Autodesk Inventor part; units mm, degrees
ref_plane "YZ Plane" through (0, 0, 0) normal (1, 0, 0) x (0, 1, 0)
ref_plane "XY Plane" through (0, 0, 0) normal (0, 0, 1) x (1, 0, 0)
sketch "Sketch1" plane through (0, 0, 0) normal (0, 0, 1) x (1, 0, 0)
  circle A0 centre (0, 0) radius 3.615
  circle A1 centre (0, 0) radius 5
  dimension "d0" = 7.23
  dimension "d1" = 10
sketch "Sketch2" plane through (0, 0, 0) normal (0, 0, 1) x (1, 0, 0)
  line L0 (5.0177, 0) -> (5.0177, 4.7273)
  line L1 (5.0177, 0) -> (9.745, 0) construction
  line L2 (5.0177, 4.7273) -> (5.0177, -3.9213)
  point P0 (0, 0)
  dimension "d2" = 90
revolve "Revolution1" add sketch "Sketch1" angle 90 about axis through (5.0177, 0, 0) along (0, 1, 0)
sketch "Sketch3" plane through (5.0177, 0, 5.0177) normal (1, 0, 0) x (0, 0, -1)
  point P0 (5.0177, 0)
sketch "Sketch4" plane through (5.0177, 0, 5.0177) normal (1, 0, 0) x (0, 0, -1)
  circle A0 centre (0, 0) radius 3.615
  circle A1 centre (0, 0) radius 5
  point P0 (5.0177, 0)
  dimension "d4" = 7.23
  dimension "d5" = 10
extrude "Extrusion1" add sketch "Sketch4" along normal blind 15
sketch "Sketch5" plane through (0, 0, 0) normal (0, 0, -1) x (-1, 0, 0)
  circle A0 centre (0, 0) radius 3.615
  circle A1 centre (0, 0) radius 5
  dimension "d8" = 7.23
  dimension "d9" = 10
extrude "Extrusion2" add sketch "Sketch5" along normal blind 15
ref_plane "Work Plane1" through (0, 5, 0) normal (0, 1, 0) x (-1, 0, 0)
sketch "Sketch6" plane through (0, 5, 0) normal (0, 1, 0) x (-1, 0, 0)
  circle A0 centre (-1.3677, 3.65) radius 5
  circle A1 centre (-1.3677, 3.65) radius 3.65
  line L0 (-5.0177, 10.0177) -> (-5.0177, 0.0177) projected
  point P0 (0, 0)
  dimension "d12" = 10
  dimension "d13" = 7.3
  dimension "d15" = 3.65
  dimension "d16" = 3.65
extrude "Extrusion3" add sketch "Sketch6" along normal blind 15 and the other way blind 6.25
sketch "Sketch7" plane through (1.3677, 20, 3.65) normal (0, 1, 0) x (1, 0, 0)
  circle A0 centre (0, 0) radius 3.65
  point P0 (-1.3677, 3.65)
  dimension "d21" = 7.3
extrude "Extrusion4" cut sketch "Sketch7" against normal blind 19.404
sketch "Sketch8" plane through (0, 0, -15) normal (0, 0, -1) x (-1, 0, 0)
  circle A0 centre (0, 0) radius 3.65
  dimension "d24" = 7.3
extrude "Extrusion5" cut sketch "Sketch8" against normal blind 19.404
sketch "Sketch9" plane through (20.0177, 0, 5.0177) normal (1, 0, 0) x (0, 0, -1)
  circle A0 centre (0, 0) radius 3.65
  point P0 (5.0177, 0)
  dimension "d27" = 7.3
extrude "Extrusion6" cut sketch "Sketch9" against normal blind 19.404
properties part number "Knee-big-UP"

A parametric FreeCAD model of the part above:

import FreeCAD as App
import Part
import Sketcher
from FreeCAD import Vector
Q = App.Units.Quantity

doc = App.newDocument("Part")
body = doc.addObject("PartDesign::Body", "Body")

# Sketch on XY plane
sketch1 = body.newObject("Sketcher::SketchObject", "Sketch")
sketch1.AttachmentSupport = (doc.getObject("XY_Plane"), [""])
sketch1.MapMode = "FlatFace"
sketch1.addGeometry([
    Part.Circle(Vector(0, 0, 0), Vector(0, 0, 1), 5),
    Part.Circle(Vector(0, 0, 0), Vector(0, 0, 1), 3.6),
], False)
sketch1.addGeometry(Part.LineSegment(Vector(5, 0, 0), Vector(5, 10, 0)), True)  # axis
sketch1.addConstraint([
    Sketcher.Constraint("Vertical", 2),
    Sketcher.Constraint("Coincident", 0, 3, -1, 1),
    Sketcher.Constraint("Coincident", 1, 3, -1, 1),
    Sketcher.Constraint("PointOnObject", 2, 1, -1),
    Sketcher.Constraint("Diameter", 0, Q("10 mm")),
    Sketcher.Constraint("Diameter", 1, Q("7.23 mm")),
    Sketcher.Constraint("DistanceY", 2, 1, 2, 2, Q("10 mm")),
    Sketcher.Constraint("DistanceX", -1, 1, 2, 1, Q("5.0177 mm")),
])
revolution = body.newObject("PartDesign::Revolution", "Revolution")
revolution.Profile = sketch1
revolution.ReferenceAxis = (sketch1, ["Axis0"])
revolution.Angle = 90

# Sketch on YZ plane
sketch2 = body.newObject("Sketcher::SketchObject", "Sketch001")
sketch2.AttachmentSupport = (doc.getObject("YZ_Plane"), [""])
sketch2.MapMode = "FlatFace"
sketch2.AttachmentOffset = App.Placement(Vector(0, 0, 5.0177), App.Rotation())
sketch2.addGeometry([
    Part.Circle(Vector(0, 5, 0), Vector(0, 0, 1), 5),
    Part.Circle(Vector(0, 5, 0), Vector(0, 0, 1), 3.6),
], False)
sketch2.addConstraint([
    Sketcher.Constraint("Coincident", 1, 3, 0, 3),
    Sketcher.Constraint("PointOnObject", 0, 3, -2),
    Sketcher.Constraint("Diameter", 0, Q("10 mm")),
    Sketcher.Constraint("Diameter", 1, Q("7.23 mm")),
    Sketcher.Constraint("DistanceY", -1, 1, 0, 3, Q("5.0177 mm")),
])
pad1 = body.newObject("PartDesign::Pad", "Pad")
pad1.Profile = sketch2
pad1.Length = 15

# Sketch on XY plane
sketch3 = body.newObject("Sketcher::SketchObject", "Sketch002")
sketch3.AttachmentSupport = (doc.getObject("XY_Plane"), [""])
sketch3.MapMode = "FlatFace"
sketch3.addGeometry([
    Part.Circle(Vector(0, 0, 0), Vector(0, 0, 1), 5),
    Part.Circle(Vector(0, 0, 0), Vector(0, 0, 1), 3.6),
], False)
sketch3.addConstraint([
    Sketcher.Constraint("Coincident", 0, 3, -1, 1),
    Sketcher.Constraint("Coincident", 1, 3, -1, 1),
    Sketcher.Constraint("Diameter", 0, Q("10 mm")),
    Sketcher.Constraint("Diameter", 1, Q("7.23 mm")),
])
pad2 = body.newObject("PartDesign::Pad", "Pad001")
pad2.Profile = sketch3
pad2.Length = 15
pad2.Reversed = True

# Sketch on XZ plane
sketch4 = body.newObject("Sketcher::SketchObject", "Sketch003")
sketch4.AttachmentSupport = (doc.getObject("XZ_Plane"), [""])
sketch4.MapMode = "FlatFace"
sketch4.AttachmentOffset = App.Placement(Vector(0, 0, -5), App.Rotation())
sketch4.addGeometry([
    Part.Circle(Vector(1.4, 3.6, 0), Vector(0, 0, 1), 5),
    Part.Circle(Vector(1.4, 3.6, 0), Vector(0, 0, 1), 3.6),
], False)
sketch4.addConstraint([
    Sketcher.Constraint("Coincident", 1, 3, 0, 3),
    Sketcher.Constraint("Diameter", 0, Q("10 mm")),
    Sketcher.Constraint("Diameter", 1, Q("7.3 mm")),
    Sketcher.Constraint("DistanceY", -1, 1, 0, 3, Q("3.65 mm")),
    Sketcher.Constraint("DistanceX", -1, 1, 0, 3, Q("1.3677 mm")),
])
pad3 = body.newObject("PartDesign::Pad", "Pad002")
pad3.Profile = sketch4
pad3.Type = "TwoLengths"
pad3.Length = 15
pad3.Length2 = 6.25
pad3.Reversed = True

# Sketch on XZ plane
sketch5 = body.newObject("Sketcher::SketchObject", "Sketch004")
sketch5.AttachmentSupport = (doc.getObject("XZ_Plane"), [""])
sketch5.MapMode = "FlatFace"
sketch5.AttachmentOffset = App.Placement(Vector(0, 0, -20), App.Rotation())
sketch5.addGeometry(Part.Circle(Vector(1.4, 3.6, 0), Vector(0, 0, 1), 3.6), False)
sketch5.addConstraint([
    Sketcher.Constraint("Diameter", 0, Q("7.3 mm")),
    Sketcher.Constraint("DistanceY", -1, 1, 0, 3, Q("3.65 mm")),
    Sketcher.Constraint("DistanceX", -1, 1, 0, 3, Q("1.3677 mm")),
])
pocket1 = body.newObject("PartDesign::Pocket", "Pocket")
pocket1.Profile = sketch5
pocket1.Length = 19.404
pocket1.Reversed = True

# Sketch on XY plane
sketch6 = body.newObject("Sketcher::SketchObject", "Sketch005")
sketch6.AttachmentSupport = (doc.getObject("XY_Plane"), [""])
sketch6.MapMode = "FlatFace"
sketch6.AttachmentOffset = App.Placement(Vector(0, 0, -15), App.Rotation())
sketch6.addGeometry(Part.Circle(Vector(0, 0, 0), Vector(0, 0, 1), 3.6), False)
sketch6.addConstraint([
    Sketcher.Constraint("Coincident", 0, 3, -1, 1),
    Sketcher.Constraint("Diameter", 0, Q("7.3 mm")),
])
pocket2 = body.newObject("PartDesign::Pocket", "Pocket001")
pocket2.Profile = sketch6
pocket2.Length = 19.404
pocket2.Reversed = True

# Sketch on YZ plane
sketch7 = body.newObject("Sketcher::SketchObject", "Sketch006")
sketch7.AttachmentSupport = (doc.getObject("YZ_Plane"), [""])
sketch7.MapMode = "FlatFace"
sketch7.AttachmentOffset = App.Placement(Vector(0, 0, 20.0177), App.Rotation())
sketch7.addGeometry(Part.Circle(Vector(0, 5, 0), Vector(0, 0, 1), 3.6), False)
sketch7.addConstraint([
    Sketcher.Constraint("PointOnObject", 0, 3, -2),
    Sketcher.Constraint("Diameter", 0, Q("7.3 mm")),
    Sketcher.Constraint("DistanceY", -1, 1, 0, 3, Q("5.0177 mm")),
])
pocket3 = body.newObject("PartDesign::Pocket", "Pocket002")
pocket3.Profile = sketch7
pocket3.Length = 19.404

doc.recompute()
